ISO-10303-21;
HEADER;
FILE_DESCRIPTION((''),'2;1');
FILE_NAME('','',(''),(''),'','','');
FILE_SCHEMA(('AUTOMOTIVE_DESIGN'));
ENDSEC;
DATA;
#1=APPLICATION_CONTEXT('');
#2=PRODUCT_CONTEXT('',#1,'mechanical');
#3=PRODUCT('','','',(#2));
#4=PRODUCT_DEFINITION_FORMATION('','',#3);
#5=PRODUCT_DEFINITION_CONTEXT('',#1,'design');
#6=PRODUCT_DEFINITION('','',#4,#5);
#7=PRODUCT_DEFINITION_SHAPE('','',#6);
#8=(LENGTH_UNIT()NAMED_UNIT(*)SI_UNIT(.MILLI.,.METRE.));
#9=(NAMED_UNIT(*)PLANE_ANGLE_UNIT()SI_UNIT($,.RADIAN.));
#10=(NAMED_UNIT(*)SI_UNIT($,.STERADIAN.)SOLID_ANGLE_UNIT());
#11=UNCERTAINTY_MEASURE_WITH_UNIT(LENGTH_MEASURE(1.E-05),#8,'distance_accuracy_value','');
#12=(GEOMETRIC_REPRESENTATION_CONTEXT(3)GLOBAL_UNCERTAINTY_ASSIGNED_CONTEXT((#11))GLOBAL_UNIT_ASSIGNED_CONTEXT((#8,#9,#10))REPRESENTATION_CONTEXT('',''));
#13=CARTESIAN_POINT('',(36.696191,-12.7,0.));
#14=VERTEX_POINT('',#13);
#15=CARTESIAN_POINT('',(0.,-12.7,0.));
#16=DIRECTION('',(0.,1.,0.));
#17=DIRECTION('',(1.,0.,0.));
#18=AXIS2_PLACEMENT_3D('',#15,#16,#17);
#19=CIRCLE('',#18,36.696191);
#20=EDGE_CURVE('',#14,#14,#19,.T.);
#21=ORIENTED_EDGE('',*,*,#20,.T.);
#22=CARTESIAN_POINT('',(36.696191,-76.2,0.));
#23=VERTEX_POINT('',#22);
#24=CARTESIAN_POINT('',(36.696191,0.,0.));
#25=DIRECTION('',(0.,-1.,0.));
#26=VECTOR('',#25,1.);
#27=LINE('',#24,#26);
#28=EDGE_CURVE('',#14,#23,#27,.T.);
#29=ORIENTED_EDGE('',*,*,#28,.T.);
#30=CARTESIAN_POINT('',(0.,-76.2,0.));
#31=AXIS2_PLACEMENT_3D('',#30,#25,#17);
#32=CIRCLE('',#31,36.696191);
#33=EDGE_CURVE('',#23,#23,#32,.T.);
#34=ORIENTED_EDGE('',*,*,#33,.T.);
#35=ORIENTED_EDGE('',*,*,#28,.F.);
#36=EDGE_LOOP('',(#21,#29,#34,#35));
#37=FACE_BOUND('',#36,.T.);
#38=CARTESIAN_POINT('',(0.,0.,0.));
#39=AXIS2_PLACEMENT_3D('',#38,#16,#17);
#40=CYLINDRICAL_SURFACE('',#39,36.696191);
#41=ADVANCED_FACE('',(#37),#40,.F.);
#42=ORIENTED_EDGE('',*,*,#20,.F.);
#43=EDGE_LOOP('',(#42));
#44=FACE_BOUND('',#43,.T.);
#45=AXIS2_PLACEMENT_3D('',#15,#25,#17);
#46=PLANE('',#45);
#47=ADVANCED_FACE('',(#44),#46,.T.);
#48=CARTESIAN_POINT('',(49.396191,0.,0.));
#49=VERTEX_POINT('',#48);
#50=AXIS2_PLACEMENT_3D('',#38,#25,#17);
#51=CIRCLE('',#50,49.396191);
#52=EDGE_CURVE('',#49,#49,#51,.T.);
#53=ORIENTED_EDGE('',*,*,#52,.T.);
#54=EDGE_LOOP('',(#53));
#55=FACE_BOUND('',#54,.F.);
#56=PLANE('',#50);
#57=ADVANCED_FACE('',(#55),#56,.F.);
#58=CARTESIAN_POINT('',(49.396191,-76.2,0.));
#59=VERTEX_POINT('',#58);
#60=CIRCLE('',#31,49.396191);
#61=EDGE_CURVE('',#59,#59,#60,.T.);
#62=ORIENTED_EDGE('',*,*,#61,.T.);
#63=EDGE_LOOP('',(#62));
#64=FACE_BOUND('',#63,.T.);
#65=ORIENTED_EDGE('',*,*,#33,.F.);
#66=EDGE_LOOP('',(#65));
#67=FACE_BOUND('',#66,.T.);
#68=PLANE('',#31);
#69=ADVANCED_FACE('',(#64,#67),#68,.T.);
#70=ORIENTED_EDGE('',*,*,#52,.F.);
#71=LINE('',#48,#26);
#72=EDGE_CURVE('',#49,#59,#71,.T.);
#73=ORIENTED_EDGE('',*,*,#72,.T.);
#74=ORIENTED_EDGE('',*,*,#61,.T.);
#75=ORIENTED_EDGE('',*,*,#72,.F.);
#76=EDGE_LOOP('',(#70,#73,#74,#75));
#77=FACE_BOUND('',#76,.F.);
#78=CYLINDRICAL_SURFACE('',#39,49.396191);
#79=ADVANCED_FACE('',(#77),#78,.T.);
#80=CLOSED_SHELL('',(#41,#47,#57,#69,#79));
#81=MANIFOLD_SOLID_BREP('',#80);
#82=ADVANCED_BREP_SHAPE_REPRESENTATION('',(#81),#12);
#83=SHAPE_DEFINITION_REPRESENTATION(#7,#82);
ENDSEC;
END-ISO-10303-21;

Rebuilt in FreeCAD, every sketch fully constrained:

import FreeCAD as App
import Part
import Sketcher
Q = App.Units.Quantity


def faces_at(feature, points):
    """Names of the faces that lie closest to the given points."""
    faces = feature.Shape.Faces
    near = lambda p: min(range(len(faces)), key=lambda i: faces[i].distToShape(Part.Vertex(*p))[0])
    return sorted({f"Face{near(p) + 1}" for p in points})

doc = App.newDocument("Part")
body = doc.addObject("PartDesign::Body", "Body")

# Sketch on XZ plane
sketch1 = body.newObject("Sketcher::SketchObject", "Sketch")
sketch1.AttachmentSupport = (doc.getObject("XZ_Plane"), [""])
sketch1.MapMode = "FlatFace"
sketch1.addGeometry(Part.Circle(App.Vector(0, 0, 0), App.Vector(0, 0, 1), 49), False)
sketch1.addConstraint(Sketcher.Constraint("Coincident", 0, 3, -1, 1))
sketch1.addConstraint(Sketcher.Constraint("Diameter", 0, 98.792382))
pad1 = body.newObject("PartDesign::Pad", "Pad")
pad1.Profile = sketch1
pad1.Length = Q("3 in")

# Sketch on XZ plane
sketch2 = body.newObject("Sketcher::SketchObject", "Sketch001")
sketch2.AttachmentSupport = (doc.getObject("XZ_Plane"), [""])
sketch2.MapMode = "FlatFace"
sketch2.addGeometry(Part.Circle(App.Vector(0, 0, 0), App.Vector(0, 0, 1), 24), False)
sketch2.addConstraint(Sketcher.Constraint("Coincident", 0, 3, -1, 1))
sketch2.addConstraint(Sketcher.Constraint("Diameter", 0, 47.722254))
pad2 = body.newObject("PartDesign::Pad", "Pad001")
pad2.Profile = sketch2
pad2.Length = Q("2 in")
doc.recompute()

thickness = body.newObject("PartDesign::Thickness", "Thickness")
thickness.Base = (pad2, faces_at(pad2, [(0, -76.2, 0)]))
thickness.Value = Q("0.5 in")
thickness.Reversed = True
thickness.Join = "Arc"

doc.recompute()
